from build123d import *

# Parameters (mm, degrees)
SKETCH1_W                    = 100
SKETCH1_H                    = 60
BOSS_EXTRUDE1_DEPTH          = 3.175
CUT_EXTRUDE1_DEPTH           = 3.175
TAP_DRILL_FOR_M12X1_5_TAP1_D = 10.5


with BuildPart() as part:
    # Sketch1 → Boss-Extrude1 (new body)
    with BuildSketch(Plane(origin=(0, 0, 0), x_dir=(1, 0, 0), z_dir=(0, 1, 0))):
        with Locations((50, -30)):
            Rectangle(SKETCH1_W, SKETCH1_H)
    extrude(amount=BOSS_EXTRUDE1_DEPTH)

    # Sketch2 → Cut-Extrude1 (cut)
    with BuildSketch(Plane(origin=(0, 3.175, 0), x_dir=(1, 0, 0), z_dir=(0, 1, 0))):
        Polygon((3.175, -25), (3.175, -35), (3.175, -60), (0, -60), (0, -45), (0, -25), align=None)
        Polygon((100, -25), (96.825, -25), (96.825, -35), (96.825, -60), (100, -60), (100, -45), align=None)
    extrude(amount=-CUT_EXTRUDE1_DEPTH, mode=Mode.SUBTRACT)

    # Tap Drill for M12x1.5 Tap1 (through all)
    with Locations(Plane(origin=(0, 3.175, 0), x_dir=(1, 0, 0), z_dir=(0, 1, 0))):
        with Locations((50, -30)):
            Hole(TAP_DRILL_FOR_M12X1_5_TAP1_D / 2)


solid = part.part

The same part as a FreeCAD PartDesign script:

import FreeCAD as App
import Part
import Sketcher
Q = App.Units.Quantity


def add_polygon(sketch, points):
    """Adds a closed chain of lines whose ends are joined by coincident constraints."""
    first, n = sketch.GeometryCount, len(points)
    for a, b in zip(points, points[1:] + points[:1]):
        sketch.addGeometry(Part.LineSegment(App.Vector(*a, 0), App.Vector(*b, 0)), False)
    for i in range(n):
        sketch.addConstraint(Sketcher.Constraint("Coincident", first + i, 2, first + (i + 1) % n, 1))

doc = App.newDocument("Part")
body = doc.addObject("PartDesign::Body", "Body")

sketch1 = body.newObject("Sketcher::SketchObject", "Sketch")
sketch1.AttachmentSupport = (doc.getObject("XZ_Plane"), [""])
sketch1.MapMode = "FlatFace"
add_polygon(sketch1, [(0, 0), (0, 60), (100, 60), (100, 0)])
sketch1.addConstraint([
    Sketcher.Constraint("Vertical", 0),
    Sketcher.Constraint("Horizontal", 1),
    Sketcher.Constraint("Vertical", 2),
    Sketcher.Constraint("Horizontal", 3),
    Sketcher.Constraint("Coincident", 3, 2, -1, 1),
    Sketcher.Constraint("DistanceX", 1, 1, 1, 2, Q("100 mm")),
    Sketcher.Constraint("DistanceY", 0, 1, 0, 2, Q("60 mm")),
])
pad1 = body.newObject("PartDesign::Pad", "Pad")
pad1.Profile = sketch1
pad1.Length = 3.175
pad1.Reversed = True

sketch2 = body.newObject("Sketcher::SketchObject", "Sketch001")
sketch2.AttachmentSupport = (doc.getObject("XZ_Plane"), [""])
sketch2.MapMode = "FlatFace"
sketch2.AttachmentOffset = App.Placement(App.Vector(0, 0, -3.175), App.Rotation())
add_polygon(sketch2, [(3.175, 60), (3.175, 25), (0, 25), (0, 60)])
add_polygon(sketch2, [(100, 25), (96.825, 25), (96.825, 60), (100, 60)])
sketch2.addConstraint([
    Sketcher.Constraint("Vertical", 0),
    Sketcher.Constraint("Horizontal", 1),
    Sketcher.Constraint("Vertical", 2),
    Sketcher.Constraint("Horizontal", 3),
    Sketcher.Constraint("Horizontal", 4),
    Sketcher.Constraint("Vertical", 5),
    Sketcher.Constraint("Horizontal", 6),
    Sketcher.Constraint("Vertical", 7),
    Sketcher.Constraint("PointOnObject", 1, 2, -2),
    Sketcher.Constraint("Horizontal", 1, 2, 4, 2),
    Sketcher.Constraint("Horizontal", 3, 2, 5, 2),
    Sketcher.Constraint("Equal", 3, 4),
    Sketcher.Constraint("DistanceY", 0, 2, 0, 1, Q("35 mm")),
    Sketcher.Constraint("DistanceY", -1, 1, 0, 2, Q("25 mm")),
    Sketcher.Constraint("DistanceX", -1, 1, 6, 2, Q("100 mm")),
    Sketcher.Constraint("DistanceX", 1, 2, 1, 1, Q("3.175 mm")),
])
pocket1 = body.newObject("PartDesign::Pocket", "Pocket")
pocket1.Profile = sketch2
pocket1.Length = 3.175
pocket1.Reversed = True

sketch3 = body.newObject("Sketcher::SketchObject", "Sketch002")
sketch3.AttachmentSupport = (doc.getObject("XZ_Plane"), [""])
sketch3.MapMode = "FlatFace"
sketch3.AttachmentOffset = App.Placement(App.Vector(0, 0, -3.175), App.Rotation())
sketch3.addGeometry(Part.Circle(App.Vector(50, 30, 0), App.Vector(0, 0, 1), 5.25), False)
sketch3.addConstraint([
    Sketcher.Constraint("Diameter", 0, Q("10.5 mm")),
    Sketcher.Constraint("DistanceX", -1, 1, 0, 3, Q("50 mm")),
    Sketcher.Constraint("DistanceY", -1, 1, 0, 3, Q("30 mm")),
])
doc.recompute()
hole = body.newObject("PartDesign::Hole", "Hole")
hole.Profile = sketch3
hole.ThreadType = "None"
hole.Diameter = 10.5
hole.DepthType = "ThroughAll"
hole.Reversed = True

doc.recompute()
